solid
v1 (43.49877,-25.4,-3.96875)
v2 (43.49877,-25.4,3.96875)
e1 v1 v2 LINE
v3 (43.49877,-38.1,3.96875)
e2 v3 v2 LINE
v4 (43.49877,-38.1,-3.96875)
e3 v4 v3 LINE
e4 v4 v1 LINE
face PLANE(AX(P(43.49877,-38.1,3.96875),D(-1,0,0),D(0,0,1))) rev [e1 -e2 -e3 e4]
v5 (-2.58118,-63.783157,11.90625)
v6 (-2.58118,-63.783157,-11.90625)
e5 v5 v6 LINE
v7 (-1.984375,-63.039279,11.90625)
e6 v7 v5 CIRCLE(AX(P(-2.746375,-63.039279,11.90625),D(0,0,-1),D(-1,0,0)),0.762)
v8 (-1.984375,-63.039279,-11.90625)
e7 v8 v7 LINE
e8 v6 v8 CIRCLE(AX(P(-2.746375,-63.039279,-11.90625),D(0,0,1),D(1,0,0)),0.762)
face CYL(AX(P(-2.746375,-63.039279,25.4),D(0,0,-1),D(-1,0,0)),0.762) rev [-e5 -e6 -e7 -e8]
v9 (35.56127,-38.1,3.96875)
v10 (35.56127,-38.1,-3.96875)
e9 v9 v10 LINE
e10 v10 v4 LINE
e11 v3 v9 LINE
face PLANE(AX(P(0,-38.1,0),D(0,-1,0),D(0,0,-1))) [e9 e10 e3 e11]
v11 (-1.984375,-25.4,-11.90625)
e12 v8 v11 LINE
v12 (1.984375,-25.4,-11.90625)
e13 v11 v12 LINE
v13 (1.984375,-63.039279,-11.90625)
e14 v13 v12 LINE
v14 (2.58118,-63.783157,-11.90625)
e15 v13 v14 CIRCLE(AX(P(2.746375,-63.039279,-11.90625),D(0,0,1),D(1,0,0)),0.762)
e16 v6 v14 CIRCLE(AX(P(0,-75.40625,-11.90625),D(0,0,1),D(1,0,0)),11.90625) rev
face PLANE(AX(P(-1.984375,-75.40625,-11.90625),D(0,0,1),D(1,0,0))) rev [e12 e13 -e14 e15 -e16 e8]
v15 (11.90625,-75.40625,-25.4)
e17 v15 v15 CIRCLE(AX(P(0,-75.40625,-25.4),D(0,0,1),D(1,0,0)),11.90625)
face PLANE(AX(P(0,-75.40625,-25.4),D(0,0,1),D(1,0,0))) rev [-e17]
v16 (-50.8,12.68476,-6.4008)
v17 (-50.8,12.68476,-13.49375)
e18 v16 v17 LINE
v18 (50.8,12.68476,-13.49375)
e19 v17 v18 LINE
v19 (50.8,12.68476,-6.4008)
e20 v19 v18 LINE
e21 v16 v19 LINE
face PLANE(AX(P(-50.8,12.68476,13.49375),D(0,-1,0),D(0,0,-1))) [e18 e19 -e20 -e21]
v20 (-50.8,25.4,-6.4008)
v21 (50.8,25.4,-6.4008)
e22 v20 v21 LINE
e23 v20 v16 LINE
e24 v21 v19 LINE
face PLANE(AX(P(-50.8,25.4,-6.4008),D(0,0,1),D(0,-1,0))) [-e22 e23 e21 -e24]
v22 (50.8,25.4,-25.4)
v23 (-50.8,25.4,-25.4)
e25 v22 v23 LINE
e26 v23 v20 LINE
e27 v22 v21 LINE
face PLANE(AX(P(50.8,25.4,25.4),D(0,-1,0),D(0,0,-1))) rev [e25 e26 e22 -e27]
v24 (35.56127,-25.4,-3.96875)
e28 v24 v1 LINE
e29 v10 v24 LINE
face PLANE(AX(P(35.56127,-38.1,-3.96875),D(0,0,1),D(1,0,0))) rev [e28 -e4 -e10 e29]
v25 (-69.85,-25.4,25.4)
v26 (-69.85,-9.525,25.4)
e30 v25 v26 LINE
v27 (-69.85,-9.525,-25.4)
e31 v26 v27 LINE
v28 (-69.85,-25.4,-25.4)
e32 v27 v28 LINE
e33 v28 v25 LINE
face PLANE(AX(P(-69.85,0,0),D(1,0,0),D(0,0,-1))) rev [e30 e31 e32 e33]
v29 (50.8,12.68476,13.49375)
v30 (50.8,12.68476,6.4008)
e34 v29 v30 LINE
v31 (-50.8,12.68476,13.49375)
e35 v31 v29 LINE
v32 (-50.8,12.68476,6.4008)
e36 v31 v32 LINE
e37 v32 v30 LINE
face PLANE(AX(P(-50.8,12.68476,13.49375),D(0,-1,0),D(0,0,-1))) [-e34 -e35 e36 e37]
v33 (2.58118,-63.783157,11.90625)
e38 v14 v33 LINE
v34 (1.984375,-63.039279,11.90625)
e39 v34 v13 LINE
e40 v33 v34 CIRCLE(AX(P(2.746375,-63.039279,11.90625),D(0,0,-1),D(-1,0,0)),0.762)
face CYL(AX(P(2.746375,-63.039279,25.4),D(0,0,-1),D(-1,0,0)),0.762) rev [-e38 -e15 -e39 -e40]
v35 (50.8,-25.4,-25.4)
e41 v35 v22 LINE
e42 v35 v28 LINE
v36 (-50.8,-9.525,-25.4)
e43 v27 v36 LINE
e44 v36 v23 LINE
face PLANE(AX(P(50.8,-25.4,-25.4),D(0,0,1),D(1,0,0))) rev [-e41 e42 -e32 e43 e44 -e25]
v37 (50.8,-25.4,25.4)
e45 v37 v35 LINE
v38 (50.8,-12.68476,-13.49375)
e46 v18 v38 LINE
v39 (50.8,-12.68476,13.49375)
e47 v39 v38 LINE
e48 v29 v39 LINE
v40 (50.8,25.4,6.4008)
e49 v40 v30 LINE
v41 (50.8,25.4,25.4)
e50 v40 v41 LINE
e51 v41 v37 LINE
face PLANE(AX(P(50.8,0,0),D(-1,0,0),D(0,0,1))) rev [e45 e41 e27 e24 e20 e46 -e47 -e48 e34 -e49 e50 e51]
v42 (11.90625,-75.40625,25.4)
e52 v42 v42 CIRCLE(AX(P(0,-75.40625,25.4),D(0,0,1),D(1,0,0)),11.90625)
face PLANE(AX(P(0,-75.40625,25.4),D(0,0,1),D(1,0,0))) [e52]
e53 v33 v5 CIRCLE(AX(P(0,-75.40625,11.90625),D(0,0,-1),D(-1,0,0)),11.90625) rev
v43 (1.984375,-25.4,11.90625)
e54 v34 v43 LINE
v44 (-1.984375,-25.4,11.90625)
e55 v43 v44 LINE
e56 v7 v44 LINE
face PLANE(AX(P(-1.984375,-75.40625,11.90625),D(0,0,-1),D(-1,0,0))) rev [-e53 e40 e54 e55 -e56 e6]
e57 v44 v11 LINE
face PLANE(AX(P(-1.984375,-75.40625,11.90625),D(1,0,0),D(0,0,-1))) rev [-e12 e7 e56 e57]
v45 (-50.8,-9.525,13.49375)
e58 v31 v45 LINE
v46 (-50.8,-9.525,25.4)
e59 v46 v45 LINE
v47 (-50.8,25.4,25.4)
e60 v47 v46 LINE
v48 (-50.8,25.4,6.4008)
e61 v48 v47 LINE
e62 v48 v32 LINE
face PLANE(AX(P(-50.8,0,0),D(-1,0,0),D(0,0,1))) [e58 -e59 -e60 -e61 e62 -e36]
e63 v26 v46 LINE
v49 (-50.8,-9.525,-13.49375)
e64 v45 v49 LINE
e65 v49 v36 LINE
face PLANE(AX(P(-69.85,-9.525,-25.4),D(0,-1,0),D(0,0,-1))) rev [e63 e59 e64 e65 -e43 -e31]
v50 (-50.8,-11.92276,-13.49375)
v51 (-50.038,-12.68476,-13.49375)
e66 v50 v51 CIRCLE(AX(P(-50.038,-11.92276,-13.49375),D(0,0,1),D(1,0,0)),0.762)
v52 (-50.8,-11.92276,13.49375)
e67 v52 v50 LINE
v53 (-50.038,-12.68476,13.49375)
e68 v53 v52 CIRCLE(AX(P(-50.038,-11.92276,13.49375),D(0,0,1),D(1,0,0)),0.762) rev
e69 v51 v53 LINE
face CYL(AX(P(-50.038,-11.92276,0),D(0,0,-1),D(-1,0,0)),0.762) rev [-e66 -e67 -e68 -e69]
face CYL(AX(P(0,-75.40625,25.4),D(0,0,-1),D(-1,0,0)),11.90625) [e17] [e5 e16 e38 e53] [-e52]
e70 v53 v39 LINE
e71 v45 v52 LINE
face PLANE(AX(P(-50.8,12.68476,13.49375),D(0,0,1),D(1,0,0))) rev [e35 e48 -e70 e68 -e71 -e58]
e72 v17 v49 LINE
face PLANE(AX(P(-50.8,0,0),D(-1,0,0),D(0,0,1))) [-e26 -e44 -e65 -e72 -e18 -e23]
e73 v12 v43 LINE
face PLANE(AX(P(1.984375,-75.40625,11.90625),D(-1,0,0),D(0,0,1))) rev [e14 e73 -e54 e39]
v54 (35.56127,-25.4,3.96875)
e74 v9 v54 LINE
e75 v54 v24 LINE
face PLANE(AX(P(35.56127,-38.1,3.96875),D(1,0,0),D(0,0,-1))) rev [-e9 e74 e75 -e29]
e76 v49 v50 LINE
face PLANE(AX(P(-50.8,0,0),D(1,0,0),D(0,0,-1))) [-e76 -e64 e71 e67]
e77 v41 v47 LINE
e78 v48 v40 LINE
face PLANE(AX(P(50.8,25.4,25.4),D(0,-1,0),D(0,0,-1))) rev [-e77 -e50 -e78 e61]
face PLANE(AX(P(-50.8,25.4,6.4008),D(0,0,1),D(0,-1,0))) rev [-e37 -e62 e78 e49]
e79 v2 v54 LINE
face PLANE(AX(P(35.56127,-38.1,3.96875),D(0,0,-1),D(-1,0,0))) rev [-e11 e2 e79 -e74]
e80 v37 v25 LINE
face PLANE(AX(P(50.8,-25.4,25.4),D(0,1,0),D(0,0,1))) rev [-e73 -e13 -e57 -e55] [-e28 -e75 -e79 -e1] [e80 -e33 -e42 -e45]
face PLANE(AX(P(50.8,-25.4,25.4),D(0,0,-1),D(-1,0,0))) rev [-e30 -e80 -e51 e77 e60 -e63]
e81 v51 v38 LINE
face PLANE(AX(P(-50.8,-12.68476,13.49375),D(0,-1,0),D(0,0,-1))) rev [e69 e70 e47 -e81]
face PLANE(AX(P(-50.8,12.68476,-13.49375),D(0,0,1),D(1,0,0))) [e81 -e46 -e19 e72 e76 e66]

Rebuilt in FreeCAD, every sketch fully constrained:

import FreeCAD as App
import Part
import Sketcher
from FreeCAD import Vector
Q = App.Units.Quantity


def edges_at(feature, points):
    """Names of the edges that pass closest to the given points."""
    edges = feature.Shape.Edges
    near = lambda p: min(range(len(edges)), key=lambda i: edges[i].distToShape(Part.Vertex(*p))[0])
    return sorted({f"Edge{near(p) + 1}" for p in points})

doc = App.newDocument("Part")
params = doc.addObject("Spreadsheet::Sheet", "Params")
for row, (alias, value) in enumerate([
    ("sketch1_width", "2 in"),
    ("pad1_length", "4 in"),
    ("sketch2_height", "1.0625 in"),
    ("sketch2_height2", "0.504 in"),
    ("sketch3_width", "0.15625 in"),
    ("sketch3_height", "0.9375 in"),
    ("pad2_length", "1.96875 in"),
    ("sketch4_diameter", "0.9375 in"),
    ("pad3_length", "2 in"),
    ("sketch5_height", "2 in"),
    ("sketch5_width", "0.625 in"),
    ("pad4_length", "0.75 in"),
    ("sketch6_width", "0.3125 in"),
    ("pad5_length", "0.5 in"),
    ("fillet_radius", "0.03 in"),
], start=1):
    params.set(f"A{row}", alias)
    params.set(f"B{row}", "=" + value)
    params.setAlias(f"B{row}", alias)

body = doc.addObject("PartDesign::Body", "Body")

sketch1 = body.newObject("Sketcher::SketchObject", "Sketch")
sketch1.AttachmentSupport = (doc.getObject("YZ_Plane"), [""])
sketch1.MapMode = "FlatFace"
sketch1.addGeometry(Part.LineSegment(Vector(25.4, 25.4, 0), Vector(-25.4, 25.4, 0)), False)
sketch1.addGeometry(Part.LineSegment(Vector(-25.4, 25.4, 0), Vector(-25.4, -25.4, 0)), False)
sketch1.addGeometry(Part.LineSegment(Vector(-25.4, -25.4, 0), Vector(25.4, -25.4, 0)), False)
sketch1.addGeometry(Part.LineSegment(Vector(25.4, -25.4, 0), Vector(25.4, 25.4, 0)), False)
sketch1.addConstraint(Sketcher.Constraint("Coincident", 0, 2, 1, 1))
sketch1.addConstraint(Sketcher.Constraint("Coincident", 1, 2, 2, 1))
sketch1.addConstraint(Sketcher.Constraint("Coincident", 2, 2, 3, 1))
sketch1.addConstraint(Sketcher.Constraint("Coincident", 3, 2, 0, 1))
sketch1.addConstraint(Sketcher.Constraint("Horizontal", 0))
sketch1.addConstraint(Sketcher.Constraint("Vertical", 1))
sketch1.addConstraint(Sketcher.Constraint("Horizontal", 2))
sketch1.addConstraint(Sketcher.Constraint("Vertical", 3))
sketch1.addConstraint(Sketcher.Constraint("Symmetric", 0, 2, 2, 2, -1, 1))
sketch1.addConstraint(Sketcher.Constraint("Equal", 2, 1))
sketch1.addConstraint(Sketcher.Constraint("DistanceX", 0, 2, 0, 1, Q("2 in")))
sketch1.setExpression("Constraints[10]", "Params.sketch1_width")
pad1 = body.newObject("PartDesign::Pad", "Pad")
pad1.Profile = sketch1
pad1.setExpression("Length", "Params.pad1_length")
pad1.Midplane = True

sketch2 = body.newObject("Sketcher::SketchObject", "Sketch001")
sketch2.AttachmentSupport = (doc.getObject("YZ_Plane"), [""])
sketch2.MapMode = "FlatFace"
sketch2.AttachmentOffset = App.Placement(Vector(0, 0, 2 * 25.4), App.Rotation())
sketch2.addGeometry(Part.LineSegment(Vector(25.4, 6.4008, 0), Vector(12.68476, 6.4008, 0)), False)
sketch2.addGeometry(Part.LineSegment(Vector(12.68476, 6.4008, 0), Vector(12.68476, 13.49375, 0)), False)
sketch2.addGeometry(Part.LineSegment(Vector(12.68476, 13.49375, 0), Vector(-12.68476, 13.49375, 0)), False)
sketch2.addGeometry(Part.LineSegment(Vector(-12.68476, 13.49375, 0), Vector(-12.68476, -13.49375, 0)), False)
sketch2.addGeometry(Part.LineSegment(Vector(-12.68476, -13.49375, 0), Vector(12.68476, -13.49375, 0)), False)
sketch2.addGeometry(Part.LineSegment(Vector(12.68476, -13.49375, 0), Vector(12.68476, -6.4008, 0)), False)
sketch2.addGeometry(Part.LineSegment(Vector(12.68476, -6.4008, 0), Vector(25.4, -6.4008, 0)), False)
sketch2.addGeometry(Part.LineSegment(Vector(25.4, -6.4008, 0), Vector(25.4, 6.4008, 0)), False)
sketch2.addConstraint(Sketcher.Constraint("Coincident", 0, 2, 1, 1))
sketch2.addConstraint(Sketcher.Constraint("Coincident", 1, 2, 2, 1))
sketch2.addConstraint(Sketcher.Constraint("Coincident", 2, 2, 3, 1))
sketch2.addConstraint(Sketcher.Constraint("Coincident", 3, 2, 4, 1))
sketch2.addConstraint(Sketcher.Constraint("Coincident", 4, 2, 5, 1))
sketch2.addConstraint(Sketcher.Constraint("Coincident", 5, 2, 6, 1))
sketch2.addConstraint(Sketcher.Constraint("Coincident", 6, 2, 7, 1))
sketch2.addConstraint(Sketcher.Constraint("Coincident", 7, 2, 0, 1))
sketch2.addConstraint(Sketcher.Constraint("Horizontal", 0))
sketch2.addConstraint(Sketcher.Constraint("Vertical", 1))
sketch2.addConstraint(Sketcher.Constraint("Horizontal", 2))
sketch2.addConstraint(Sketcher.Constraint("Vertical", 3))
sketch2.addConstraint(Sketcher.Constraint("Horizontal", 4))
sketch2.addConstraint(Sketcher.Constraint("Vertical", 5))
sketch2.addConstraint(Sketcher.Constraint("Horizontal", 6))
sketch2.addConstraint(Sketcher.Constraint("Vertical", 7))
sketch2.addConstraint(Sketcher.Constraint("Symmetric", 1, 2, 3, 2, -1, 1))
sketch2.addConstraint(Sketcher.Constraint("Symmetric", 0, 2, 5, 2, -1))
sketch2.addConstraint(Sketcher.Constraint("DistanceX", -1, 1, 6, 2, Q("1 in")))
sketch2.addConstraint(Sketcher.Constraint("DistanceY", 3, 2, 3, 1, Q("1.0625 in")))
sketch2.addConstraint(Sketcher.Constraint("DistanceY", 7, 1, 7, 2, Q("0.504 in")))
sketch2.addConstraint(Sketcher.Constraint("DistanceX", 0, 2, 0, 1, Q("0.5006 in")))
sketch2.setExpression("Constraints[19]", "Params.sketch2_height")
sketch2.setExpression("Constraints[20]", "Params.sketch2_height2")
pocket1 = body.newObject("PartDesign::Pocket", "Pocket")
pocket1.Profile = sketch2
pocket1.Type = "ThroughAll"

sketch3 = body.newObject("Sketcher::SketchObject", "Sketch002")
sketch3.AttachmentSupport = (doc.getObject("XZ_Plane"), [""])
sketch3.MapMode = "FlatFace"
sketch3.AttachmentOffset = App.Placement(Vector(0, 0, 1 * 25.4), App.Rotation())
sketch3.addGeometry(Part.LineSegment(Vector(-1.984375, 11.90625, 0), Vector(-1.984375, -11.90625, 0)), False)
sketch3.addGeometry(Part.LineSegment(Vector(-1.984375, -11.90625, 0), Vector(1.984375, -11.90625, 0)), False)
sketch3.addGeometry(Part.LineSegment(Vector(1.984375, -11.90625, 0), Vector(1.984375, 11.90625, 0)), False)
sketch3.addGeometry(Part.LineSegment(Vector(1.984375, 11.90625, 0), Vector(-1.984375, 11.90625, 0)), False)
sketch3.addConstraint(Sketcher.Constraint("Coincident", 0, 2, 1, 1))
sketch3.addConstraint(Sketcher.Constraint("Coincident", 1, 2, 2, 1))
sketch3.addConstraint(Sketcher.Constraint("Coincident", 2, 2, 3, 1))
sketch3.addConstraint(Sketcher.Constraint("Coincident", 3, 2, 0, 1))
sketch3.addConstraint(Sketcher.Constraint("Vertical", 0))
sketch3.addConstraint(Sketcher.Constraint("Horizontal", 1))
sketch3.addConstraint(Sketcher.Constraint("Vertical", 2))
sketch3.addConstraint(Sketcher.Constraint("Horizontal", 3))
sketch3.addConstraint(Sketcher.Constraint("Symmetric", 0, 2, 2, 2, -1, 1))
sketch3.addConstraint(Sketcher.Constraint("DistanceX", 1, 1, 1, 2, Q("0.15625 in")))
sketch3.addConstraint(Sketcher.Constraint("DistanceY", 0, 2, 0, 1, Q("0.9375 in")))
sketch3.setExpression("Constraints[9]", "Params.sketch3_width")
sketch3.setExpression("Constraints[10]", "Params.sketch3_height")
pad2 = body.newObject("PartDesign::Pad", "Pad001")
pad2.Profile = sketch3
pad2.setExpression("Length", "Params.pad2_length")

sketch4 = body.newObject("Sketcher::SketchObject", "Sketch003")
sketch4.AttachmentSupport = (doc.getObject("XY_Plane"), [""])
sketch4.MapMode = "FlatFace"
sketch4.addGeometry(Part.Circle(Vector(0, -75.40625, 0), Vector(0, 0, 1), 11.90625), False)
sketch4.addConstraint(Sketcher.Constraint("PointOnObject", 0, 3, -2))
sketch4.addConstraint(Sketcher.Constraint("Diameter", 0, Q("0.9375 in")))
sketch4.addConstraint(Sketcher.Constraint("DistanceY", 0, 3, -1, 1, Q("2.96875 in")))
sketch4.setExpression("Constraints[1]", "Params.sketch4_diameter")
pad3 = body.newObject("PartDesign::Pad", "Pad002")
pad3.Profile = sketch4
pad3.setExpression("Length", "Params.pad3_length")
pad3.Midplane = True

sketch5 = body.newObject("Sketcher::SketchObject", "Sketch004")
sketch5.AttachmentSupport = (doc.getObject("YZ_Plane"), [""])
sketch5.MapMode = "FlatFace"
sketch5.AttachmentOffset = App.Placement(Vector(0, 0, -2 * 25.4), App.Rotation())
sketch5.addGeometry(Part.LineSegment(Vector(-9.525, -25.4, 0), Vector(-25.4, -25.4, 0)), False)
sketch5.addGeometry(Part.LineSegment(Vector(-25.4, -25.4, 0), Vector(-25.4, 25.4, 0)), False)
sketch5.addGeometry(Part.LineSegment(Vector(-25.4, 25.4, 0), Vector(-9.525, 25.4, 0)), False)
sketch5.addGeometry(Part.LineSegment(Vector(-9.525, 25.4, 0), Vector(-9.525, -25.4, 0)), False)
sketch5.addConstraint(Sketcher.Constraint("Coincident", 0, 2, 1, 1))
sketch5.addConstraint(Sketcher.Constraint("Coincident", 1, 2, 2, 1))
sketch5.addConstraint(Sketcher.Constraint("Coincident", 2, 2, 3, 1))
sketch5.addConstraint(Sketcher.Constraint("Coincident", 3, 2, 0, 1))
sketch5.addConstraint(Sketcher.Constraint("Horizontal", 0))
sketch5.addConstraint(Sketcher.Constraint("Vertical", 1))
sketch5.addConstraint(Sketcher.Constraint("Horizontal", 2))
sketch5.addConstraint(Sketcher.Constraint("Vertical", 3))
sketch5.addConstraint(Sketcher.Constraint("DistanceY", 1, 1, 1, 2, Q("2 in")))
sketch5.addConstraint(Sketcher.Constraint("DistanceX", 0, 2, -1, 1, Q("1 in")))
sketch5.addConstraint(Sketcher.Constraint("DistanceY", 0, 2, -1, 1, Q("1 in")))
sketch5.addConstraint(Sketcher.Constraint("DistanceX", 0, 2, 0, 1, Q("0.625 in")))
sketch5.setExpression("Constraints[8]", "Params.sketch5_height")
sketch5.setExpression("Constraints[11]", "Params.sketch5_width")
pad4 = body.newObject("PartDesign::Pad", "Pad003")
pad4.Profile = sketch5
pad4.setExpression("Length", "Params.pad4_length")
pad4.Reversed = True

sketch6 = body.newObject("Sketcher::SketchObject", "Sketch005")
sketch6.AttachmentSupport = (doc.getObject("XZ_Plane"), [""])
sketch6.MapMode = "FlatFace"
sketch6.AttachmentOffset = App.Placement(Vector(0, 0, 1 * 25.4), App.Rotation())
sketch6.addGeometry(Part.LineSegment(Vector(35.56127, 3.96875, 0), Vector(35.56127, -3.96875, 0)), False)
sketch6.addGeometry(Part.LineSegment(Vector(35.56127, -3.96875, 0), Vector(43.49877, -3.96875, 0)), False)
sketch6.addGeometry(Part.LineSegment(Vector(43.49877, -3.96875, 0), Vector(43.49877, 3.96875, 0)), False)
sketch6.addGeometry(Part.LineSegment(Vector(43.49877, 3.96875, 0), Vector(35.56127, 3.96875, 0)), False)
sketch6.addConstraint(Sketcher.Constraint("Coincident", 0, 2, 1, 1))
sketch6.addConstraint(Sketcher.Constraint("Coincident", 1, 2, 2, 1))
sketch6.addConstraint(Sketcher.Constraint("Coincident", 2, 2, 3, 1))
sketch6.addConstraint(Sketcher.Constraint("Coincident", 3, 2, 0, 1))
sketch6.addConstraint(Sketcher.Constraint("Vertical", 0))
sketch6.addConstraint(Sketcher.Constraint("Horizontal", 1))
sketch6.addConstraint(Sketcher.Constraint("Vertical", 2))
sketch6.addConstraint(Sketcher.Constraint("Horizontal", 3))
sketch6.addConstraint(Sketcher.Constraint("Equal", 3, 0))
sketch6.addConstraint(Sketcher.Constraint("DistanceX", 1, 1, 1, 2, Q("0.3125 in")))
sketch6.addConstraint(Sketcher.Constraint("DistanceY", 0, 2, -1, 1, Q("0.15625 in")))
sketch6.addConstraint(Sketcher.Constraint("DistanceX", -1, 1, 0, 2, Q("35.56127 mm")))
sketch6.setExpression("Constraints[9]", "Params.sketch6_width")
pad5 = body.newObject("PartDesign::Pad", "Pad004")
pad5.Profile = sketch6
pad5.setExpression("Length", "Params.pad5_length")
doc.recompute()

fillet = body.newObject("PartDesign::Fillet", "Fillet")
fillet.Base = (pad5, edges_at(pad5, [(-50.8, -12.685, 0), (1.984, -63.667, 0), (-1.984, -63.667, 0)]))
fillet.setExpression("Radius", "Params.fillet_radius")

doc.recompute()
